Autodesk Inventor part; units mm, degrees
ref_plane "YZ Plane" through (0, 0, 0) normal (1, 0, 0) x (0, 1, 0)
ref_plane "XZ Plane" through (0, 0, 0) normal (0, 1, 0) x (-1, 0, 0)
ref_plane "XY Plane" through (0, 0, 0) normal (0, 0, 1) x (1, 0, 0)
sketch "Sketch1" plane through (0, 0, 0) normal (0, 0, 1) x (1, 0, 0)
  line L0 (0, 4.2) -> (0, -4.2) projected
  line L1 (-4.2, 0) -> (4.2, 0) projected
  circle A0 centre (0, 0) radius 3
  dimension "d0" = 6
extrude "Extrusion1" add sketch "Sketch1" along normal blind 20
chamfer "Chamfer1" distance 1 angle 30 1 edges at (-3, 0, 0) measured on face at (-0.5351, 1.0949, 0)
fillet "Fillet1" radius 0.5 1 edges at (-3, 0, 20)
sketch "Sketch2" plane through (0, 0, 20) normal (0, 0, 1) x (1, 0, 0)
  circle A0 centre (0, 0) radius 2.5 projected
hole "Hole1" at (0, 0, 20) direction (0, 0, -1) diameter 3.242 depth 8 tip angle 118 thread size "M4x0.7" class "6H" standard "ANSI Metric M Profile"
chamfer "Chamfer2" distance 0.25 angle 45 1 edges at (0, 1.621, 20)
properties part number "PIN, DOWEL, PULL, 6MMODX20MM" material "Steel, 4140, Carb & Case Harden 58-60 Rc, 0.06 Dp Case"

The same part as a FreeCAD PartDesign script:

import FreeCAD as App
import Part
import Sketcher
from FreeCAD import Vector
Q = App.Units.Quantity


def edges_at(feature, points):
    """Names of the edges that pass closest to the given points."""
    edges = feature.Shape.Edges
    near = lambda p: min(range(len(edges)), key=lambda i: edges[i].distToShape(Part.Vertex(*p))[0])
    return sorted({f"Edge{near(p) + 1}" for p in points})

doc = App.newDocument("Part")
params = doc.addObject("Spreadsheet::Sheet", "Params")
for row, (alias, value) in enumerate([
    ("sketch1_diameter", "6 mm"),
    ("pad1_length", "20 mm"),
    ("chamfer_size", "1 mm"),
    ("fillet_radius", "0.5 mm"),
    ("hole_diameter", "3.242 mm"),
    ("hole_depth", "8 mm"),
    ("chamfer2_size", "0.25 mm"),
], start=1):
    params.set(f"A{row}", alias)
    params.set(f"B{row}", "=" + value)
    params.setAlias(f"B{row}", alias)

body = doc.addObject("PartDesign::Body", "Body")

# Sketch on XY plane
sketch1 = body.newObject("Sketcher::SketchObject", "Sketch")
sketch1.AttachmentSupport = (doc.getObject("XY_Plane"), [""])
sketch1.MapMode = "FlatFace"
sketch1.addGeometry(Part.Circle(Vector(0, 0, 0), Vector(0, 0, 1), 3), False)
sketch1.addConstraint([
    Sketcher.Constraint("Coincident", 0, 3, -1, 1),
    Sketcher.Constraint("Diameter", 0, Q("6 mm")),
])
sketch1.setExpression("Constraints[1]", "Params.sketch1_diameter")
pad1 = body.newObject("PartDesign::Pad", "Pad")
pad1.Profile = sketch1
pad1.setExpression("Length", "Params.pad1_length")
doc.recompute()

chamfer = body.newObject("PartDesign::Chamfer", "Chamfer")
chamfer.Base = (pad1, edges_at(pad1, [(-3, 0, 0)]))
chamfer.ChamferType = "Distance and Angle"
chamfer.setExpression("Size", "Params.chamfer_size")
chamfer.Angle = 30
chamfer.FlipDirection = True
doc.recompute()

fillet = body.newObject("PartDesign::Fillet", "Fillet")
fillet.Base = (chamfer, edges_at(chamfer, [(-3, 0, 20)]))
fillet.setExpression("Radius", "Params.fillet_radius")

# Sketch on XY plane
sketch2 = body.newObject("Sketcher::SketchObject", "Sketch001")
sketch2.AttachmentSupport = (doc.getObject("XY_Plane"), [""])
sketch2.MapMode = "FlatFace"
sketch2.AttachmentOffset = App.Placement(Vector(0, 0, 20), App.Rotation())
sketch2.addGeometry(Part.Circle(Vector(0, 0, 0), Vector(0, 0, 1), 1.6), False)
sketch2.addConstraint([
    Sketcher.Constraint("Coincident", 0, 3, -1, 1),
    Sketcher.Constraint("Diameter", 0, Q("3.242 mm")),
])
doc.recompute()
hole = body.newObject("PartDesign::Hole", "Hole")
hole.Profile = sketch2
hole.ThreadType = "None"
hole.setExpression("Diameter", "Params.hole_diameter")
hole.DepthType = "Dimension"
hole.setExpression("Depth", "Params.hole_depth")
hole.DrillPoint = "Angled"
hole.DrillPointAngle = 118
doc.recompute()

chamfer2 = body.newObject("PartDesign::Chamfer", "Chamfer001")
chamfer2.Base = (hole, edges_at(hole, [(0, 1.621, 20)]))
chamfer2.setExpression("Size", "Params.chamfer2_size")

doc.recompute()
